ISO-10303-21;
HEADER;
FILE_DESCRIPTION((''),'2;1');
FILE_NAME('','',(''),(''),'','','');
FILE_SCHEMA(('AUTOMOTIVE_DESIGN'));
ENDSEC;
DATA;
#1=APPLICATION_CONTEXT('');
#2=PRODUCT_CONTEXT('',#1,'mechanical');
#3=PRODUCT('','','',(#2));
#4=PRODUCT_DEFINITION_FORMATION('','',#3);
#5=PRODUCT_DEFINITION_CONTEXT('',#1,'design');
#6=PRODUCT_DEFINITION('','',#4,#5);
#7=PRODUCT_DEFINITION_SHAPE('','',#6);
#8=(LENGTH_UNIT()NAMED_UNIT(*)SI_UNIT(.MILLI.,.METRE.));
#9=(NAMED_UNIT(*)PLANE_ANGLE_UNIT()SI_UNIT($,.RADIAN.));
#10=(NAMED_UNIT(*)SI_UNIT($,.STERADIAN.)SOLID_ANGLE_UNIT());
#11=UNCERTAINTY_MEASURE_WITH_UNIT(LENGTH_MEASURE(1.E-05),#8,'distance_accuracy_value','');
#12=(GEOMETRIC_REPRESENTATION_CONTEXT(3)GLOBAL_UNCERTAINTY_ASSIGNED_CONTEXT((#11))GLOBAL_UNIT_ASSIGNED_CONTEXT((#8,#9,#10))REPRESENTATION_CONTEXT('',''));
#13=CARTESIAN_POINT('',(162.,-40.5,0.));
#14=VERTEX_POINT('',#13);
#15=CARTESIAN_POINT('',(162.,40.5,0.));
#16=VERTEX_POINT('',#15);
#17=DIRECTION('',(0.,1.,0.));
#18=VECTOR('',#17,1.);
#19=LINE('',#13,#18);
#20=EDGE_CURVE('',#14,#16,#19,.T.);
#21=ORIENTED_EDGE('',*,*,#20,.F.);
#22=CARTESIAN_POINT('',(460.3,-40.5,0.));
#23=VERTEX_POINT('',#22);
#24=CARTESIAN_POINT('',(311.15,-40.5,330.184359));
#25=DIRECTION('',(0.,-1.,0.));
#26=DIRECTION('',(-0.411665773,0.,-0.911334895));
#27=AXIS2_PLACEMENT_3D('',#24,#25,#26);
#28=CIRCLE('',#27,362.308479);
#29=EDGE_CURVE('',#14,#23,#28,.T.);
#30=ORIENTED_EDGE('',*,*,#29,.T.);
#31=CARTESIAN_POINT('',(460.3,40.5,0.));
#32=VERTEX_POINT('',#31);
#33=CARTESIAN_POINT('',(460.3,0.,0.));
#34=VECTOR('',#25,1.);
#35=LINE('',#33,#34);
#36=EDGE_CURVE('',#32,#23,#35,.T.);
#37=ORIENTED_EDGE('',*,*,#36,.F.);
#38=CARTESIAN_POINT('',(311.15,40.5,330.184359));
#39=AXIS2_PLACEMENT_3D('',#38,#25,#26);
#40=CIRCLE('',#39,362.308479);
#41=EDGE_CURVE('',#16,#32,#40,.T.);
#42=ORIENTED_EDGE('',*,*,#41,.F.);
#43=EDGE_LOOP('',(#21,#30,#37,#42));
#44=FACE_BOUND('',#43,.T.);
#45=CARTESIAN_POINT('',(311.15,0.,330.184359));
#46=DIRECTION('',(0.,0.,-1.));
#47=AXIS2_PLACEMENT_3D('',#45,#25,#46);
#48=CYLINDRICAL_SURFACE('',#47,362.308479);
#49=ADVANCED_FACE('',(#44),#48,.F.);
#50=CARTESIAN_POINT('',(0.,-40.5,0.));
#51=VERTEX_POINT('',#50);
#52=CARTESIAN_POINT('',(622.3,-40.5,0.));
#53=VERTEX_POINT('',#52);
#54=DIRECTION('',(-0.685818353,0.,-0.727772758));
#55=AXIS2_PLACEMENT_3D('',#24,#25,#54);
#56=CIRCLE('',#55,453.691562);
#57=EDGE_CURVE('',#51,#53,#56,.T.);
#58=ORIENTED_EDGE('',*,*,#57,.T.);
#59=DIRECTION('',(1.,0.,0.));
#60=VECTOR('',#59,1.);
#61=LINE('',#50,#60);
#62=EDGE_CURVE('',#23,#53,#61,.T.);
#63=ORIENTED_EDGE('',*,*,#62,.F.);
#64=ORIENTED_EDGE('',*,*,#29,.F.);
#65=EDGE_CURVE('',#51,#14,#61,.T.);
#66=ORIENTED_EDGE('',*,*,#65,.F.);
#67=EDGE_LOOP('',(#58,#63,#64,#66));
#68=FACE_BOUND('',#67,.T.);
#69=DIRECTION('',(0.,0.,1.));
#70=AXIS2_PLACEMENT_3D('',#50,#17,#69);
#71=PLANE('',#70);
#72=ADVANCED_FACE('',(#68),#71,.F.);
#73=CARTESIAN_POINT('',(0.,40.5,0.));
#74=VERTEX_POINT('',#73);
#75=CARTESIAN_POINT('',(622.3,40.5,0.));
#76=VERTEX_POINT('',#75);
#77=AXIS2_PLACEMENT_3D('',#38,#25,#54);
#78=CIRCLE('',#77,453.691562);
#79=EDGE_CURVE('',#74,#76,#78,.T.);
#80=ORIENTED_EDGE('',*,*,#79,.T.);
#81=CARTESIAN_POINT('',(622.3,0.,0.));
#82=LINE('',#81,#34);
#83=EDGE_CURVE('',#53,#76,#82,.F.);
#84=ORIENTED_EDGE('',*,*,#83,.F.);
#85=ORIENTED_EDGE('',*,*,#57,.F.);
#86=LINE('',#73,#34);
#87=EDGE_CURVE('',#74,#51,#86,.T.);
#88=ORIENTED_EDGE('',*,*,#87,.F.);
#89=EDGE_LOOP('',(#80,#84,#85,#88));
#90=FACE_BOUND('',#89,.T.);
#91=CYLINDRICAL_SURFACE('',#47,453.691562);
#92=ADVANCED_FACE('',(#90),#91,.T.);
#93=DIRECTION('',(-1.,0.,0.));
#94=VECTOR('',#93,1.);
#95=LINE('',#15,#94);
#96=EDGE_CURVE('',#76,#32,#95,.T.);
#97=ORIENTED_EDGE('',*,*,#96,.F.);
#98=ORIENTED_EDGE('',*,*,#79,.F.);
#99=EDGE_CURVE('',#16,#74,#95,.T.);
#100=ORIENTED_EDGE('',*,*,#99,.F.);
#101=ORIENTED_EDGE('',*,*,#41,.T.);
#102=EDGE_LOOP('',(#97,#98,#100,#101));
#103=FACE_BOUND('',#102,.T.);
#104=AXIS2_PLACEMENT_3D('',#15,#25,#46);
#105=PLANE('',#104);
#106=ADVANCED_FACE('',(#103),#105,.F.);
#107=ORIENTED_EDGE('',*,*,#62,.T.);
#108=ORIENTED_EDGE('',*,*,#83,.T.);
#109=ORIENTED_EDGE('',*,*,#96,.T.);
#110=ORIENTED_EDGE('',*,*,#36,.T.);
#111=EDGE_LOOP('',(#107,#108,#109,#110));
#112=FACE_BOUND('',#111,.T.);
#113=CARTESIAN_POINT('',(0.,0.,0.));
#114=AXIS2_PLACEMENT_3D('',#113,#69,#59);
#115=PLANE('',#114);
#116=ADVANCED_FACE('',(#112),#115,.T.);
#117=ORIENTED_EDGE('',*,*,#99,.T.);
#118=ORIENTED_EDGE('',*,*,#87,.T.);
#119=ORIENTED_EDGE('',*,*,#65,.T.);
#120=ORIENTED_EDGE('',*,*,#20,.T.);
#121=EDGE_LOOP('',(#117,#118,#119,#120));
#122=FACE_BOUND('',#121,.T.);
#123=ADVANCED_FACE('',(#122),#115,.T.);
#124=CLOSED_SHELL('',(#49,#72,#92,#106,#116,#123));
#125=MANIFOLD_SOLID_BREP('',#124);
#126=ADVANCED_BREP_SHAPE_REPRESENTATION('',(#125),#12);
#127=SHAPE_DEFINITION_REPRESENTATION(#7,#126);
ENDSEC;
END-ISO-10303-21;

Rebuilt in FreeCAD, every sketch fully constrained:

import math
import FreeCAD as App
import Part
import Sketcher
from FreeCAD import Vector

doc = App.newDocument("Part")
body = doc.addObject("PartDesign::Body", "Body")

# Sketch on XY plane
sketch1 = body.newObject("Sketcher::SketchObject", "Sketch")
sketch1.AttachmentSupport = (doc.getObject("XY_Plane"), [""])
sketch1.MapMode = "FlatFace"
sketch1.addGeometry(Part.LineSegment(Vector(0, 40, 0), Vector(0, -40, 0)), False)
sketch1.addGeometry(Part.LineSegment(Vector(0, -40, 0), Vector(162, -40, 0)), False)
sketch1.addGeometry(Part.LineSegment(Vector(162, -40, 0), Vector(162, 40, 0)), False)
sketch1.addGeometry(Part.LineSegment(Vector(162, 40, 0), Vector(0, 40, 0)), False)
sketch1.addConstraint(Sketcher.Constraint("Coincident", 0, 2, 1, 1))
sketch1.addConstraint(Sketcher.Constraint("Coincident", 1, 2, 2, 1))
sketch1.addConstraint(Sketcher.Constraint("Coincident", 2, 2, 3, 1))
sketch1.addConstraint(Sketcher.Constraint("Coincident", 3, 2, 0, 1))
sketch1.addConstraint(Sketcher.Constraint("Vertical", 0))
sketch1.addConstraint(Sketcher.Constraint("Horizontal", 1))
sketch1.addConstraint(Sketcher.Constraint("Vertical", 2))
sketch1.addConstraint(Sketcher.Constraint("Horizontal", 3))
sketch1.addConstraint(Sketcher.Constraint("Symmetric", 0, 2, 3, 2, -1, 1))
sketch1.addConstraint(Sketcher.Constraint("DistanceX", 1, 1, 1, 2, 162.0))
sketch1.addConstraint(Sketcher.Constraint("DistanceY", 0, 2, 0, 1, 81.0))

# Sketch on XZ plane
sketch2 = body.newObject("Sketcher::SketchObject", "Sketch001")
sketch2.AttachmentSupport = (doc.getObject("XZ_Plane"), [""])
sketch2.MapMode = "FlatFace"
sketch2.addGeometry(Part.ArcOfCircle(Part.Circle(Vector(311, 330, 0), Vector(0, 0, 1), 454), math.radians(-133), math.radians(-17)), False)
sketch2.addConstraint(Sketcher.Constraint("Coincident", 0, 1, -1, 1))
sketch2.addConstraint(Sketcher.Constraint("DistanceX", -1, 1, 0, 3, 311.15))
sketch2.addConstraint(Sketcher.Constraint("Radius", 0, 453.691562))
sketch2.addConstraint(Sketcher.Constraint("DistanceY", -1, 1, 0, 2, 194.82219))
doc.recompute()

additivepipe = body.newObject("PartDesign::AdditivePipe", "AdditivePipe")
additivepipe.Profile = sketch1
additivepipe.Spine = (sketch2, ["Edge1"])

# Sketch on XY plane
sketch3 = body.newObject("Sketcher::SketchObject", "Sketch002")
sketch3.AttachmentSupport = (doc.getObject("XY_Plane"), [""])
sketch3.MapMode = "FlatFace"
sketch3.addGeometry(Part.LineSegment(Vector(-246, 992, 0), Vector(-246, -998, 0)), False)
sketch3.addGeometry(Part.LineSegment(Vector(-246, -998, 0), Vector(1079, -998, 0)), False)
sketch3.addGeometry(Part.LineSegment(Vector(1079, -998, 0), Vector(1079, 992, 0)), False)
sketch3.addGeometry(Part.LineSegment(Vector(1079, 992, 0), Vector(-246, 992, 0)), False)
sketch3.addConstraint(Sketcher.Constraint("Coincident", 0, 2, 1, 1))
sketch3.addConstraint(Sketcher.Constraint("Coincident", 1, 2, 2, 1))
sketch3.addConstraint(Sketcher.Constraint("Coincident", 2, 2, 3, 1))
sketch3.addConstraint(Sketcher.Constraint("Coincident", 3, 2, 0, 1))
sketch3.addConstraint(Sketcher.Constraint("Vertical", 0))
sketch3.addConstraint(Sketcher.Constraint("Horizontal", 1))
sketch3.addConstraint(Sketcher.Constraint("Vertical", 2))
sketch3.addConstraint(Sketcher.Constraint("Horizontal", 3))
sketch3.addConstraint(Sketcher.Constraint("DistanceX", 1, 1, 1, 2, 1325.37508))
sketch3.addConstraint(Sketcher.Constraint("DistanceY", 0, 2, 0, 1, 1989.116652))
sketch3.addConstraint(Sketcher.Constraint("DistanceX", 0, 2, -1, 1, 246.346149))
sketch3.addConstraint(Sketcher.Constraint("DistanceY", 0, 2, -1, 1, 997.544654))
pocket1 = body.newObject("PartDesign::Pocket", "Pocket")
pocket1.Profile = sketch3
pocket1.Type = "ThroughAll"
pocket1.Reversed = True

doc.recompute()
